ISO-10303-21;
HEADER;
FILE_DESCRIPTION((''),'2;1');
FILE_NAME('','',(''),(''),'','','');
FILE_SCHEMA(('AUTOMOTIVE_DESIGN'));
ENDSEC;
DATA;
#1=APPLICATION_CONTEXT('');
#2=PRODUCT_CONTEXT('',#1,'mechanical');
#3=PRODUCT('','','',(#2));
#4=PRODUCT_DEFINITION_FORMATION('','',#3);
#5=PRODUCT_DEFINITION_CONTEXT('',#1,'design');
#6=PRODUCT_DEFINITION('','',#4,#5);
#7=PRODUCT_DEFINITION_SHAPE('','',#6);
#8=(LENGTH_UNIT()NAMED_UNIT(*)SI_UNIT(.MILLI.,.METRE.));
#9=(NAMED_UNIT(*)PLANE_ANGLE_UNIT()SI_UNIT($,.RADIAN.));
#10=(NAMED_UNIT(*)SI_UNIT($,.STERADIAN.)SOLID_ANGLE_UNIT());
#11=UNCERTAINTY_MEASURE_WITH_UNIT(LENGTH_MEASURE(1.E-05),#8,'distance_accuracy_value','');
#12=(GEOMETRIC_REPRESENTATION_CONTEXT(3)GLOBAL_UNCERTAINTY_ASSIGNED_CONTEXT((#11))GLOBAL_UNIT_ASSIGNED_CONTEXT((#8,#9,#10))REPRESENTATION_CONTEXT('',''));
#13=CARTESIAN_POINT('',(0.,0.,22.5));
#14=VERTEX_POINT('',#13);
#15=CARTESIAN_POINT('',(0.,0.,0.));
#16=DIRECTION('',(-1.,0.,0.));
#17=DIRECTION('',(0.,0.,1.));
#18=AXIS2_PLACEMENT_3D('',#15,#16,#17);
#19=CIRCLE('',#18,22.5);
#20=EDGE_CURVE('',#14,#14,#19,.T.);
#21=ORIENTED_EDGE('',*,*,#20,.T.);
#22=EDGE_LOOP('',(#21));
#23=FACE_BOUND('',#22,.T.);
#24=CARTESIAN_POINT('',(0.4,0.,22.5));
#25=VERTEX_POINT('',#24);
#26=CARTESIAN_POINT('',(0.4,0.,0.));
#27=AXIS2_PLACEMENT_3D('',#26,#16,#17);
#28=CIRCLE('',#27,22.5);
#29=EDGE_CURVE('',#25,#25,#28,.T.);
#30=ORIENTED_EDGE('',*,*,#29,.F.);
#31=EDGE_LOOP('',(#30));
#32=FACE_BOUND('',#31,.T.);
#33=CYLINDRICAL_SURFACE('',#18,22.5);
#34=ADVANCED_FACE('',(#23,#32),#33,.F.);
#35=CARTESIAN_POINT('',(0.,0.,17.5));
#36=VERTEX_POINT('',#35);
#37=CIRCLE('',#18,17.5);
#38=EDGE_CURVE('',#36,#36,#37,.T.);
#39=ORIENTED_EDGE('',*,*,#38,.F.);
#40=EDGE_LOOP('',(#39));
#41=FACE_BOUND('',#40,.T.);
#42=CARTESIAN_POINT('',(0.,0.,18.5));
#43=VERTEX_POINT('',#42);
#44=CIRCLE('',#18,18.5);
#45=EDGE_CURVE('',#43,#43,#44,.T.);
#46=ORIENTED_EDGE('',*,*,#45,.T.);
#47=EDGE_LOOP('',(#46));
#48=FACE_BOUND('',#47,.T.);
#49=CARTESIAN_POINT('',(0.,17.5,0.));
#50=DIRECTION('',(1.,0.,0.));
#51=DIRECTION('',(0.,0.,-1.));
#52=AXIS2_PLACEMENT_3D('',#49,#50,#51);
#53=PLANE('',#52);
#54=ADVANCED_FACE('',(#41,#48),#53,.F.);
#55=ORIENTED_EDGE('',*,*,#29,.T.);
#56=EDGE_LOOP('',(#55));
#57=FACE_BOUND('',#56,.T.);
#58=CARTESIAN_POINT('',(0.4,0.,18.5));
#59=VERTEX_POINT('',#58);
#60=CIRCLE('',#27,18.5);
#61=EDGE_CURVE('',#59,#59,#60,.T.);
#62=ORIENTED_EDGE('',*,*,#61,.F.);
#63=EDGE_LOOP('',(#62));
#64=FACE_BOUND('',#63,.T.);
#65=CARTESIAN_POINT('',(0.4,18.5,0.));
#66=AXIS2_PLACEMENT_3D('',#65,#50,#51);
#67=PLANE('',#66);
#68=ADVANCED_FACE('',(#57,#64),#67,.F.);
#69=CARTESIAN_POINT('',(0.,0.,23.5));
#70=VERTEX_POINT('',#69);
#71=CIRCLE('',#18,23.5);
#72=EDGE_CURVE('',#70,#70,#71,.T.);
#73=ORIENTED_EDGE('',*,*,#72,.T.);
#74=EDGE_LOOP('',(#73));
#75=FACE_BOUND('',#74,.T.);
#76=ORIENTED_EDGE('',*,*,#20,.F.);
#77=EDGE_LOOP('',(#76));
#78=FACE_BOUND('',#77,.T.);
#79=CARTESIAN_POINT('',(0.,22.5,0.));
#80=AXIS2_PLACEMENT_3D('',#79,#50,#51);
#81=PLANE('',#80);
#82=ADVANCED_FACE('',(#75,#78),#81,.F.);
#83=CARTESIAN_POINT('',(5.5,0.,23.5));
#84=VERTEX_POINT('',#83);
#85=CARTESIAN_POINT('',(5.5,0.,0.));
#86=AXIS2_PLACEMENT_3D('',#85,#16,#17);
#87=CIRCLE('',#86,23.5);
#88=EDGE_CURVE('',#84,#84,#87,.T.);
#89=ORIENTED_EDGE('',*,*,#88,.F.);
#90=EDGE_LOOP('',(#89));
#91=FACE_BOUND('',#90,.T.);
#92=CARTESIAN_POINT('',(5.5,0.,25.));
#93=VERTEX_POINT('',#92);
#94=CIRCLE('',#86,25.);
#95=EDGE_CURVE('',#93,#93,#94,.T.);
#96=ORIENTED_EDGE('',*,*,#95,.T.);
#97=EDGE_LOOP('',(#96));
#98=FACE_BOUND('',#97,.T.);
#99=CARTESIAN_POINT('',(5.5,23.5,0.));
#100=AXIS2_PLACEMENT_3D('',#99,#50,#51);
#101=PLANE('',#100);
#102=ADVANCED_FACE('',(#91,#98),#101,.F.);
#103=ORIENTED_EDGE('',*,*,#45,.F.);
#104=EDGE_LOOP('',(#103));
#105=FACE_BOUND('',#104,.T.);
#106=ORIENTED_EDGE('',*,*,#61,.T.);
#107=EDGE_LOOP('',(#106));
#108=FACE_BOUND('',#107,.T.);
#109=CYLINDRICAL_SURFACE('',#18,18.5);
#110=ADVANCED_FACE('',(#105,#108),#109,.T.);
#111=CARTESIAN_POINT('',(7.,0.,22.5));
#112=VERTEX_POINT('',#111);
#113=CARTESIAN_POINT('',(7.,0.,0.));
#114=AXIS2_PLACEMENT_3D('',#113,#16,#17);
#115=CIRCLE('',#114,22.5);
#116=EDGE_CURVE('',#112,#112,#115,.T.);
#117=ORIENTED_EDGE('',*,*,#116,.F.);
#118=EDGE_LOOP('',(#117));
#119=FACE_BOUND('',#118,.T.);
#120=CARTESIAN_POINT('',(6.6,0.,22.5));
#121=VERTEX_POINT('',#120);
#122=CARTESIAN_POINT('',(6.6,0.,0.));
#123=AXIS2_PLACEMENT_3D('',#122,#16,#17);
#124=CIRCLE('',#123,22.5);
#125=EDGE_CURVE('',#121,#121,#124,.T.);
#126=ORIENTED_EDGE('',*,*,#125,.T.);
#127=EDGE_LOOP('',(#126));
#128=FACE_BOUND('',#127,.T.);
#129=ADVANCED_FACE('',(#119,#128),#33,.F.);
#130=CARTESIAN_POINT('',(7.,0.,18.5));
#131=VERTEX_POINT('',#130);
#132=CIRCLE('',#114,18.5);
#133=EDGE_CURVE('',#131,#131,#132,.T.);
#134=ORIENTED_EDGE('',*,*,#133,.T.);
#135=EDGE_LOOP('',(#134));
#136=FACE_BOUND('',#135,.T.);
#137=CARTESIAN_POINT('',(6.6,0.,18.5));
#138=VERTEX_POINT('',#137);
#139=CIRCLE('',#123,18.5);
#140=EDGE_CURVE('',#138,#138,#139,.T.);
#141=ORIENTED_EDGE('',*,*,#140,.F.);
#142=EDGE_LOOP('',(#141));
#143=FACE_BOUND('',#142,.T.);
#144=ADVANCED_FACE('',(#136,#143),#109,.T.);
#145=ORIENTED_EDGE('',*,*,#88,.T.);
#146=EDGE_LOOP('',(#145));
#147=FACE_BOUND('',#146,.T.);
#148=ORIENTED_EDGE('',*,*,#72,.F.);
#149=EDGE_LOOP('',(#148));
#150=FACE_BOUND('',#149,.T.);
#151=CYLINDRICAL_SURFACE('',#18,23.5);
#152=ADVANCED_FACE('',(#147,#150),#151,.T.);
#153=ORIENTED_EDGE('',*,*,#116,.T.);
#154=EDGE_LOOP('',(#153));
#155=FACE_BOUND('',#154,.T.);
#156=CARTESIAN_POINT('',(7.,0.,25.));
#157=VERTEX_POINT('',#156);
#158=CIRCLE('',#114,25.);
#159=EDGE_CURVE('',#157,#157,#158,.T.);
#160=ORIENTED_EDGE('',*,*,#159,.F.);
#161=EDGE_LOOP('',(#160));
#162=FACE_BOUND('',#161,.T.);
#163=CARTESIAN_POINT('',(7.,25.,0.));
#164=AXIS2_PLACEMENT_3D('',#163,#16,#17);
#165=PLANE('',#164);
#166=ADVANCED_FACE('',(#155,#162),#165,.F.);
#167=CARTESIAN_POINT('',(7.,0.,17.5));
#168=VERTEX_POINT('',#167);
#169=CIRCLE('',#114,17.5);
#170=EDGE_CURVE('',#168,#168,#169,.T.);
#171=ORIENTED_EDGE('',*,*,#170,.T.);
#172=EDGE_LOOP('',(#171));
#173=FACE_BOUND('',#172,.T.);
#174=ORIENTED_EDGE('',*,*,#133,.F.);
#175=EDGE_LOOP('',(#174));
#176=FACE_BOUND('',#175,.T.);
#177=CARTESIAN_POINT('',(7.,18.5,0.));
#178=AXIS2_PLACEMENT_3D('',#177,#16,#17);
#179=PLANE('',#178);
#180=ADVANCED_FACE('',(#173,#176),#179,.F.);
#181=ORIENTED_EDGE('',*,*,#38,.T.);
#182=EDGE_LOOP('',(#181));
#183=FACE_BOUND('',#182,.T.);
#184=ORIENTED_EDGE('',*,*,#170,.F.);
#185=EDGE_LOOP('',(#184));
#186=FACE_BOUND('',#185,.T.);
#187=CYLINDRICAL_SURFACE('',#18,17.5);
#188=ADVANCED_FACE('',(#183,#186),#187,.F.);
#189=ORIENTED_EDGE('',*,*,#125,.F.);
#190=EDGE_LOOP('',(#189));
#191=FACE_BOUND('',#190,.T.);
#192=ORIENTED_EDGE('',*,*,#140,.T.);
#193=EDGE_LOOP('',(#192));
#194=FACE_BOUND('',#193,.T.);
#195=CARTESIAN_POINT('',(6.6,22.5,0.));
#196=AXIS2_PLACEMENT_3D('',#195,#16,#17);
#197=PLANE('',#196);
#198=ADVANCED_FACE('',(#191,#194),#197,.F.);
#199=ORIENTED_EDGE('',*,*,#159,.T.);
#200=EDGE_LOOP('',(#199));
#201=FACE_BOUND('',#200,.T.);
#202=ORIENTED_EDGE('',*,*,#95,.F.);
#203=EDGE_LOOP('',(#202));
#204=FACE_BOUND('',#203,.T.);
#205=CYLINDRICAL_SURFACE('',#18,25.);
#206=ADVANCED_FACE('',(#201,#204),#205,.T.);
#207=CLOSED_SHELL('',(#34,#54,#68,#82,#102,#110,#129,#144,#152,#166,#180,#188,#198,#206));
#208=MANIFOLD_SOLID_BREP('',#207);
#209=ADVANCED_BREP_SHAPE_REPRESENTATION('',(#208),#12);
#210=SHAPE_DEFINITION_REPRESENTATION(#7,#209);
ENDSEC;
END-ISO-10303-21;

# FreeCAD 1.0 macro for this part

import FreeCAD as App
import Part
import Sketcher

V = App.Vector
Q = App.Units.Quantity

doc = App.newDocument("Part")
body = doc.addObject("PartDesign::Body", "Body")

# Sketch on XY plane
sketch1 = body.newObject("Sketcher::SketchObject", "Sketch")
sketch1.AttachmentSupport = (doc.getObject("XY_Plane"), [""])
sketch1.MapMode = "FlatFace"
sketch1.addGeometry([
    Part.LineSegment(V(7, 25, 0), V(5.5, 25, 0)),  # 0
    Part.LineSegment(V(5.5, 25, 0), V(5.5, 23.5, 0)),  # 1
    Part.LineSegment(V(5.5, 23.5, 0), V(0, 23.5, 0)),  # 2
    Part.LineSegment(V(0, 23.5, 0), V(0, 22.5, 0)),  # 3
    Part.LineSegment(V(0, 22.5, 0), V(0.4, 22.5, 0)),  # 4
    Part.LineSegment(V(0.4, 22.5, 0), V(0.4, 18.5, 0)),  # 5
    Part.LineSegment(V(0.4, 18.5, 0), V(0, 18.5, 0)),  # 6
    Part.LineSegment(V(0, 18.5, 0), V(0, 17.5, 0)),  # 7
    Part.LineSegment(V(0, 17.5, 0), V(7, 17.5, 0)),  # 8
    Part.LineSegment(V(7, 17.5, 0), V(7, 18.5, 0)),  # 9
    Part.LineSegment(V(7, 18.5, 0), V(6.6, 18.5, 0)),  # 10
    Part.LineSegment(V(6.6, 18.5, 0), V(6.6, 22.5, 0)),  # 11
    Part.LineSegment(V(6.6, 22.5, 0), V(7, 22.5, 0)),  # 12
    Part.LineSegment(V(7, 22.5, 0), V(7, 25, 0)),  # 13
], False)
sketch1.addConstraint([
    Sketcher.Constraint("Coincident", 0, 2, 1, 1),
    Sketcher.Constraint("Coincident", 1, 2, 2, 1),
    Sketcher.Constraint("Coincident", 2, 2, 3, 1),
    Sketcher.Constraint("Coincident", 3, 2, 4, 1),
    Sketcher.Constraint("Coincident", 4, 2, 5, 1),
    Sketcher.Constraint("Coincident", 5, 2, 6, 1),
    Sketcher.Constraint("Coincident", 6, 2, 7, 1),
    Sketcher.Constraint("Coincident", 7, 2, 8, 1),
    Sketcher.Constraint("Coincident", 8, 2, 9, 1),
    Sketcher.Constraint("Coincident", 9, 2, 10, 1),
    Sketcher.Constraint("Coincident", 10, 2, 11, 1),
    Sketcher.Constraint("Coincident", 11, 2, 12, 1),
    Sketcher.Constraint("Coincident", 12, 2, 13, 1),
    Sketcher.Constraint("Coincident", 13, 2, 0, 1),
    Sketcher.Constraint("Horizontal", 0),
    Sketcher.Constraint("Vertical", 1),
    Sketcher.Constraint("Horizontal", 2),
    Sketcher.Constraint("Vertical", 3),
    Sketcher.Constraint("Horizontal", 4),
    Sketcher.Constraint("Vertical", 5),
    Sketcher.Constraint("Horizontal", 6),
    Sketcher.Constraint("Vertical", 7),
    Sketcher.Constraint("Horizontal", 8),
    Sketcher.Constraint("Vertical", 9),
    Sketcher.Constraint("Horizontal", 10),
    Sketcher.Constraint("Vertical", 11),
    Sketcher.Constraint("Horizontal", 12),
    Sketcher.Constraint("Vertical", 13),
    Sketcher.Constraint("PointOnObject", 2, 2, -2),
    Sketcher.Constraint("PointOnObject", 6, 2, -2),
    Sketcher.Constraint("Horizontal", 6, 2, 9, 2),
    Sketcher.Constraint("Horizontal", 4, 2, 11, 2),
    Sketcher.Constraint("Vertical", 9, 2, 12, 2),
    Sketcher.Constraint("Equal", 6, 10),
    Sketcher.Constraint("Equal", 0, 1),
    Sketcher.Constraint("Equal", 3, 7),
    Sketcher.Constraint("DistanceX", 8, 1, 8, 2, Q("7 mm")),
    Sketcher.Constraint("DistanceY", 3, 2, 3, 1, Q("1 mm")),
    Sketcher.Constraint("DistanceY", 5, 2, 5, 1, Q("4 mm")),
    Sketcher.Constraint("DistanceX", 0, 2, 0, 1, Q("1.5 mm")),
    Sketcher.Constraint("DistanceX", 4, 1, 4, 2, Q("0.4 mm")),
    Sketcher.Constraint("DistanceY", -1, 1, 0, 2, Q("25 mm")),
])
revolution = body.newObject("PartDesign::Revolution", "Revolution")
revolution.Profile = sketch1
revolution.ReferenceAxis = (sketch1, ["H_Axis"])
revolution.Angle = 360

doc.recompute()
